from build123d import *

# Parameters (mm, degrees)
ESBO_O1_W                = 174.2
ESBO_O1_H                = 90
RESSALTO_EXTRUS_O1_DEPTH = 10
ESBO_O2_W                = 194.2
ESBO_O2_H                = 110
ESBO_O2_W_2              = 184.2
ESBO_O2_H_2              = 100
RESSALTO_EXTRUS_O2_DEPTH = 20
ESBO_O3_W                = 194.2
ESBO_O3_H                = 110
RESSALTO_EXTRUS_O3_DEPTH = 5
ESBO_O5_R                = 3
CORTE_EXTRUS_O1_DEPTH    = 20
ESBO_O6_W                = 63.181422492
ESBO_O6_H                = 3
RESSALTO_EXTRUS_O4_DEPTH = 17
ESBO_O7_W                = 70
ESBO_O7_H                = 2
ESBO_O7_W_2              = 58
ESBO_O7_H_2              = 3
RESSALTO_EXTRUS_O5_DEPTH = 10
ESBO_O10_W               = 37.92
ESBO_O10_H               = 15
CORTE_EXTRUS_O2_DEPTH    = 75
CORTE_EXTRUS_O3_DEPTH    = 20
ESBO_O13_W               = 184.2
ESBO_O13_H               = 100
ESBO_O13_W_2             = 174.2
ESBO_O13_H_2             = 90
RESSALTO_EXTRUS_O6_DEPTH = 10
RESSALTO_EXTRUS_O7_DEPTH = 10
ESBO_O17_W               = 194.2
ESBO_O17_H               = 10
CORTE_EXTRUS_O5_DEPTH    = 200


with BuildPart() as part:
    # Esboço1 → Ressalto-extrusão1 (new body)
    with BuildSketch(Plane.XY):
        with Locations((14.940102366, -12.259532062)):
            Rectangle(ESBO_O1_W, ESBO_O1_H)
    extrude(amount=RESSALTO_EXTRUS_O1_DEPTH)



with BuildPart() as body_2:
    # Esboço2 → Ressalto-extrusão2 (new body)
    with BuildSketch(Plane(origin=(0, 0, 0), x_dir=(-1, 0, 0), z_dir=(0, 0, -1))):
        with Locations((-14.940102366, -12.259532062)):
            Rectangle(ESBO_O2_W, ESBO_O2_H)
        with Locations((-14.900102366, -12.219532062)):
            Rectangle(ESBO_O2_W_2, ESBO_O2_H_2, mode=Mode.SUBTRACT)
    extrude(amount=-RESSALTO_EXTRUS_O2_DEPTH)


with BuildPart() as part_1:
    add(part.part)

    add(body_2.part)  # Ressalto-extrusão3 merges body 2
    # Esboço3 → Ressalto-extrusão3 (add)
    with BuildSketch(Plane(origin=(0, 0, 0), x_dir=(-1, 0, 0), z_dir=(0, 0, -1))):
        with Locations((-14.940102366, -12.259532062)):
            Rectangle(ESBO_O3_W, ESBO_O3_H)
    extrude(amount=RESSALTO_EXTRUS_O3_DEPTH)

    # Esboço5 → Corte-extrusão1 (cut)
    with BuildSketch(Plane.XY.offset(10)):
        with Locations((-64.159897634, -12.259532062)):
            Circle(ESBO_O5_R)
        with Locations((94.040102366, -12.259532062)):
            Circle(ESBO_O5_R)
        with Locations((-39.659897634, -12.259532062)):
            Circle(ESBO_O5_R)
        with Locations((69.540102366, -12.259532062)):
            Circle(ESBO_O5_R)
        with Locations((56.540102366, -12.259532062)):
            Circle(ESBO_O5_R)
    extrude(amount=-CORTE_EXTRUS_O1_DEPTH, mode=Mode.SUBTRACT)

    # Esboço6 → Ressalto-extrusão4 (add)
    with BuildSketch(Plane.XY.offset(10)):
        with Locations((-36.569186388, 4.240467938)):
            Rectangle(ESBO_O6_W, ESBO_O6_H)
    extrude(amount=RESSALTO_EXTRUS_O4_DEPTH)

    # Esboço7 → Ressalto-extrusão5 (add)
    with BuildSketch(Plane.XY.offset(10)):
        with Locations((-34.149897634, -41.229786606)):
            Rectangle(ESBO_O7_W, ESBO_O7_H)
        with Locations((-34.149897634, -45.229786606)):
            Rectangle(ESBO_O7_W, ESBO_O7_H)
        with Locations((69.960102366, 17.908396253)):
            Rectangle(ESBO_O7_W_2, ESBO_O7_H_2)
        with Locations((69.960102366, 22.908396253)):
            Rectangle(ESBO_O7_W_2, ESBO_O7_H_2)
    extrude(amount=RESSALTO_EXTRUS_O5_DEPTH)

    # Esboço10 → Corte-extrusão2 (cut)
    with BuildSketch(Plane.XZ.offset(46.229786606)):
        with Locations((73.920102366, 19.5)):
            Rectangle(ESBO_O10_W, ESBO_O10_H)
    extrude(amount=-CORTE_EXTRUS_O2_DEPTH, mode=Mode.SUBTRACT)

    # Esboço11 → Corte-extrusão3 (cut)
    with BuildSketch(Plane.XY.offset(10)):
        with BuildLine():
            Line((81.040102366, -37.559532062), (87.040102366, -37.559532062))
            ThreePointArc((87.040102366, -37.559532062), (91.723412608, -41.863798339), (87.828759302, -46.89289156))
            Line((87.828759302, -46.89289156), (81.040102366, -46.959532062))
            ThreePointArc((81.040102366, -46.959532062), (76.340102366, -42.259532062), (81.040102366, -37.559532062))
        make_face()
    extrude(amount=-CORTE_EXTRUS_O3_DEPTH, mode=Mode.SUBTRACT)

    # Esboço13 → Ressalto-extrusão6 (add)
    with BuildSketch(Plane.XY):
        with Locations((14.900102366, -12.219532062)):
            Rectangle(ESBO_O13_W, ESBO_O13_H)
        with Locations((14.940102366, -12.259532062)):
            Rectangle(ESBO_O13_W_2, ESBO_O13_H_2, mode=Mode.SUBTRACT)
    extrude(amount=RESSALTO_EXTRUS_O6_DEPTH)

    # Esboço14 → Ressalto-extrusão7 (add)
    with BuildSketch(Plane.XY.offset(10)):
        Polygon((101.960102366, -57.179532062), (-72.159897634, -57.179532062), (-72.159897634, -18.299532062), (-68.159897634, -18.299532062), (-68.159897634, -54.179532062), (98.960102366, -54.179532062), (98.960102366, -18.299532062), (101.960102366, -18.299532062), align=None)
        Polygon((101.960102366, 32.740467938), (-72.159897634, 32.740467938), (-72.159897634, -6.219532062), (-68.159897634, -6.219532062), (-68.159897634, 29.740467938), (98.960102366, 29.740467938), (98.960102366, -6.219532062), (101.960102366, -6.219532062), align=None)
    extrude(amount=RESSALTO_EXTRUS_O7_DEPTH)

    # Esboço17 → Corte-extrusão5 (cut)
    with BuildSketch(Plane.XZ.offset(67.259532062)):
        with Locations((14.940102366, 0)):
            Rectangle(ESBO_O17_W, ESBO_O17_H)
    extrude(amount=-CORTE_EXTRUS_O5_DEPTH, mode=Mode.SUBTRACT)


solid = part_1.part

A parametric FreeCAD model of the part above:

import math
import FreeCAD as App
import Part
import Sketcher
from FreeCAD import Vector


def add_polygon(sketch, points):
    """Adds a closed chain of lines whose ends are joined by coincident constraints."""
    first, n = sketch.GeometryCount, len(points)
    for a, b in zip(points, points[1:] + points[:1]):
        sketch.addGeometry(Part.LineSegment(App.Vector(*a, 0), App.Vector(*b, 0)), False)
    for i in range(n):
        sketch.addConstraint(Sketcher.Constraint("Coincident", first + i, 2, first + (i + 1) % n, 1))

doc = App.newDocument("Part")
body = doc.addObject("PartDesign::Body", "Body")

sketch1 = body.newObject("Sketcher::SketchObject", "Sketch")
sketch1.AttachmentSupport = (doc.getObject("XY_Plane"), [""])
sketch1.MapMode = "FlatFace"
add_polygon(sketch1, [(-72.159898, 32.740468), (-72.159898, -57.259532), (102.040102, -57.259532), (102.040102, 32.740468)])
sketch1.addConstraint([
    Sketcher.Constraint("Vertical", 0),
    Sketcher.Constraint("Horizontal", 1),
    Sketcher.Constraint("Vertical", 2),
    Sketcher.Constraint("Horizontal", 3),
    Sketcher.Constraint("DistanceY", 0, 2, 0, 1, 90.0),
    Sketcher.Constraint("DistanceX", 1, 1, 1, 2, 174.2),
    Sketcher.Constraint("DistanceX", 0, 2, -1, 1, 72.159898),
    Sketcher.Constraint("DistanceY", 0, 2, -1, 1, 57.259532),
])
pad1 = body.newObject("PartDesign::Pad", "Pad")
pad1.Profile = sketch1
pad1.Length = 10
body2 = doc.addObject("PartDesign::Body", "Body001")

sketch2 = body2.newObject("Sketcher::SketchObject", "Sketch001")
sketch2.AttachmentSupport = (doc.getObject("XY_Plane001"), [""])
sketch2.MapMode = "FlatFace"
add_polygon(sketch2, [(112.040102, 42.740468), (112.040102, -67.259532), (-82.159898, -67.259532), (-82.159898, 42.740468)])
add_polygon(sketch2, [(-77.199898, -62.219532), (107.000102, -62.219532), (107.000102, 37.780468), (-77.199898, 37.780468)])
sketch2.addConstraint([
    Sketcher.Constraint("Vertical", 0),
    Sketcher.Constraint("Horizontal", 1),
    Sketcher.Constraint("Vertical", 2),
    Sketcher.Constraint("Horizontal", 3),
    Sketcher.Constraint("Horizontal", 4),
    Sketcher.Constraint("Vertical", 5),
    Sketcher.Constraint("Horizontal", 6),
    Sketcher.Constraint("Vertical", 7),
    Sketcher.Constraint("DistanceY", 0, 2, 0, 1, 110.0),
    Sketcher.Constraint("DistanceY", 5, 1, 5, 2, 100.0),
    Sketcher.Constraint("DistanceX", 1, 2, 1, 1, 194.2),
    Sketcher.Constraint("DistanceX", 4, 1, 4, 2, 184.2),
    Sketcher.Constraint("DistanceX", 4, 2, 0, 2, 5.04),
    Sketcher.Constraint("DistanceY", 0, 2, 4, 2, 5.04),
    Sketcher.Constraint("DistanceX", -1, 1, 0, 2, 112.040102),
    Sketcher.Constraint("DistanceY", 0, 2, -1, 1, 67.259532),
])
pad2 = body2.newObject("PartDesign::Pad", "Pad001")
pad2.Profile = sketch2
pad2.Length = 20
body.AllowCompound = True
doc.recompute()

boolean = body.newObject("PartDesign::Boolean", "Boolean")
boolean.Type = "Fuse"
boolean.addObjects([body2])

sketch3 = body.newObject("Sketcher::SketchObject", "Sketch002")
sketch3.AttachmentSupport = (doc.getObject("XY_Plane"), [""])
sketch3.MapMode = "FlatFace"
add_polygon(sketch3, [(112.040102, 42.740468), (112.040102, -67.259532), (-82.159898, -67.259532), (-82.159898, 42.740468)])
sketch3.addConstraint([
    Sketcher.Constraint("Vertical", 0),
    Sketcher.Constraint("Horizontal", 1),
    Sketcher.Constraint("Vertical", 2),
    Sketcher.Constraint("Horizontal", 3),
    Sketcher.Constraint("DistanceY", 0, 2, 0, 1, 110.0),
    Sketcher.Constraint("DistanceX", 1, 2, 1, 1, 194.2),
    Sketcher.Constraint("DistanceX", -1, 1, 0, 2, 112.040102),
    Sketcher.Constraint("DistanceY", 0, 2, -1, 1, 67.259532),
])
pad3 = body.newObject("PartDesign::Pad", "Pad002")
pad3.Profile = sketch3
pad3.Length = 5
pad3.Reversed = True

sketch4 = body.newObject("Sketcher::SketchObject", "Sketch003")
sketch4.AttachmentSupport = (doc.getObject("XY_Plane"), [""])
sketch4.MapMode = "FlatFace"
sketch4.AttachmentOffset = App.Placement(Vector(0, 0, 10), App.Rotation())
sketch4.addGeometry([
    Part.Circle(Vector(-64.159898, -12.259532, 0), Vector(0, 0, 1), 3),
    Part.Circle(Vector(94.040102, -12.259532, 0), Vector(0, 0, 1), 3),
    Part.Circle(Vector(-39.659898, -12.259532, 0), Vector(0, 0, 1), 3),
    Part.Circle(Vector(69.540102, -12.259532, 0), Vector(0, 0, 1), 3),
    Part.Circle(Vector(56.540102, -12.259532, 0), Vector(0, 0, 1), 3),
], False)
sketch4.addConstraint([
    Sketcher.Constraint("Equal", 0, 1),
    Sketcher.Constraint("Equal", 1, 2),
    Sketcher.Constraint("Equal", 2, 3),
    Sketcher.Constraint("Equal", 3, 4),
    Sketcher.Constraint("Horizontal", 0, 3, 1, 3),
    Sketcher.Constraint("Horizontal", 1, 3, 2, 3),
    Sketcher.Constraint("Horizontal", 2, 3, 3, 3),
    Sketcher.Constraint("Horizontal", 3, 3, 4, 3),
    Sketcher.Constraint("Diameter", 0, 6.0),
    Sketcher.Constraint("DistanceX", 4, 3, 3, 3, 13.0),
    Sketcher.Constraint("DistanceX", 0, 3, 1, 3, 158.2),
    Sketcher.Constraint("DistanceX", 0, 3, 2, 3, 24.5),
    Sketcher.Constraint("DistanceX", 3, 3, 1, 3, 24.5),
    Sketcher.Constraint("DistanceX", 0, 3, -1, 1, 64.159898),
    Sketcher.Constraint("DistanceY", 0, 3, -1, 1, 12.259532),
])
pocket1 = body.newObject("PartDesign::Pocket", "Pocket")
pocket1.Profile = sketch4
pocket1.Length = 20

sketch5 = body.newObject("Sketcher::SketchObject", "Sketch004")
sketch5.AttachmentSupport = (doc.getObject("XY_Plane"), [""])
sketch5.MapMode = "FlatFace"
sketch5.AttachmentOffset = App.Placement(Vector(0, 0, 10), App.Rotation())
add_polygon(sketch5, [(-68.159898, 5.740468), (-68.159898, 2.740468), (-4.978475, 2.740468), (-4.978475, 5.740468)])
sketch5.addConstraint([
    Sketcher.Constraint("Vertical", 0),
    Sketcher.Constraint("Horizontal", 1),
    Sketcher.Constraint("Vertical", 2),
    Sketcher.Constraint("Horizontal", 3),
    Sketcher.Constraint("DistanceY", 0, 2, 0, 1, 3.0),
    Sketcher.Constraint("DistanceX", 1, 1, 1, 2, 63.181422),
    Sketcher.Constraint("DistanceX", 0, 2, -1, 1, 68.159898),
    Sketcher.Constraint("DistanceY", -1, 1, 0, 2, 2.740468),
])
pad4 = body.newObject("PartDesign::Pad", "Pad003")
pad4.Profile = sketch5
pad4.Length = 17

sketch6 = body.newObject("Sketcher::SketchObject", "Sketch005")
sketch6.AttachmentSupport = (doc.getObject("XY_Plane"), [""])
sketch6.MapMode = "FlatFace"
sketch6.AttachmentOffset = App.Placement(Vector(0, 0, 10), App.Rotation())
add_polygon(sketch6, [(-69.149898, -40.229787), (-69.149898, -42.229787), (0.850102, -42.229787), (0.850102, -40.229787)])
add_polygon(sketch6, [(-69.149898, -44.229787), (-69.149898, -46.229787), (0.850102, -46.229787), (0.850102, -44.229787)])
add_polygon(sketch6, [(40.960102, 19.408396), (40.960102, 16.408396), (98.960102, 16.408396), (98.960102, 19.408396)])
add_polygon(sketch6, [(40.960102, 24.408396), (40.960102, 21.408396), (98.960102, 21.408396), (98.960102, 24.408396)])
sketch6.addConstraint([
    Sketcher.Constraint("Vertical", 0),
    Sketcher.Constraint("Horizontal", 1),
    Sketcher.Constraint("Vertical", 2),
    Sketcher.Constraint("Horizontal", 3),
    Sketcher.Constraint("Vertical", 4),
    Sketcher.Constraint("Horizontal", 5),
    Sketcher.Constraint("Vertical", 6),
    Sketcher.Constraint("Horizontal", 7),
    Sketcher.Constraint("Vertical", 8),
    Sketcher.Constraint("Horizontal", 9),
    Sketcher.Constraint("Vertical", 10),
    Sketcher.Constraint("Horizontal", 11),
    Sketcher.Constraint("Vertical", 12),
    Sketcher.Constraint("Horizontal", 13),
    Sketcher.Constraint("Vertical", 14),
    Sketcher.Constraint("Horizontal", 15),
    Sketcher.Constraint("Vertical", 3, 2, 4, 2),
    Sketcher.Constraint("Vertical", 2, 2, 5, 2),
    Sketcher.Constraint("Vertical", 11, 2, 12, 2),
    Sketcher.Constraint("Vertical", 10, 2, 13, 2),
    Sketcher.Constraint("Equal", 2, 4),
    Sketcher.Constraint("Equal", 10, 12),
    Sketcher.Constraint("DistanceX", 1, 1, 1, 2, 70.0),
    Sketcher.Constraint("DistanceX", 9, 1, 9, 2, 58.0),
    Sketcher.Constraint("DistanceY", 0, 2, 0, 1, 2.0),
    Sketcher.Constraint("DistanceY", 8, 2, 8, 1, 3.0),
    Sketcher.Constraint("DistanceY", 4, 2, 0, 2, 4.0),
    Sketcher.Constraint("DistanceY", 11, 2, 12, 2, 2.0),
    Sketcher.Constraint("DistanceX", 2, 2, 8, 2, 40.11),
    Sketcher.Constraint("DistanceX", 0, 2, -1, 1, 69.149898),
    Sketcher.Constraint("DistanceY", 0, 2, -1, 1, 42.229787),
    Sketcher.Constraint("DistanceY", -1, 1, 8, 2, 16.408396),
])
pad5 = body.newObject("PartDesign::Pad", "Pad004")
pad5.Profile = sketch6
pad5.Length = 10

sketch7 = body.newObject("Sketcher::SketchObject", "Sketch006")
sketch7.AttachmentSupport = (doc.getObject("XZ_Plane"), [""])
sketch7.MapMode = "FlatFace"
sketch7.AttachmentOffset = App.Placement(Vector(0, 0, 46.229787), App.Rotation())
add_polygon(sketch7, [(54.960102, 27), (54.960102, 12), (92.880102, 12), (92.880102, 27)])
sketch7.addConstraint([
    Sketcher.Constraint("Vertical", 0),
    Sketcher.Constraint("Horizontal", 1),
    Sketcher.Constraint("Vertical", 2),
    Sketcher.Constraint("Horizontal", 3),
    Sketcher.Constraint("DistanceY", 0, 2, 0, 1, 15.0),
    Sketcher.Constraint("DistanceY", -1, 1, 0, 2, 12.0),
    Sketcher.Constraint("DistanceX", 1, 1, 1, 2, 37.92),
    Sketcher.Constraint("DistanceX", -1, 1, 0, 2, 54.960102),
])
pocket2 = body.newObject("PartDesign::Pocket", "Pocket001")
pocket2.Profile = sketch7
pocket2.Length = 75

sketch8 = body.newObject("Sketcher::SketchObject", "Sketch007")
sketch8.AttachmentSupport = (doc.getObject("XY_Plane"), [""])
sketch8.MapMode = "FlatFace"
sketch8.AttachmentOffset = App.Placement(Vector(0, 0, 10), App.Rotation())
sketch8.addGeometry([
    Part.LineSegment(Vector(87.040102, -37.559532, 0), Vector(81.040102, -37.559532, 0)),
    Part.ArcOfCircle(Part.Circle(Vector(81.040102, -42.259532, 0), Vector(0, 0, 1), 4.7), math.radians(90), math.radians(270)),
    Part.LineSegment(Vector(81.040102, -46.959532, 0), Vector(87.828759, -46.892892, 0)),
    Part.ArcOfCircle(Part.Circle(Vector(87.040102, -42.259532, 0), Vector(0, 0, 1), 4.7), math.radians(-80.340107), math.radians(90)),
], False)
sketch8.addConstraint([
    Sketcher.Constraint("Tangent", 0, 2, 1, 1),
    Sketcher.Constraint("Coincident", 1, 2, 2, 1),
    Sketcher.Constraint("Coincident", 2, 2, 3, 1),
    Sketcher.Constraint("Tangent", 3, 2, 0, 1),
    Sketcher.Constraint("Horizontal", 0),
    Sketcher.Constraint("Equal", 1, 3),
    Sketcher.Constraint("Vertical", 0, 2, 1, 2),
    Sketcher.Constraint("Radius", 1, 4.7),
    Sketcher.Constraint("DistanceX", 0, 2, 0, 1, 6.0),
    Sketcher.Constraint("DistanceX", -1, 1, 2, 2, 87.828759),
    Sketcher.Constraint("DistanceY", 2, 2, -1, 1, 46.892892),
    Sketcher.Constraint("DistanceY", 2, 2, 3, 3, 4.633359),
])
pocket3 = body.newObject("PartDesign::Pocket", "Pocket002")
pocket3.Profile = sketch8
pocket3.Length = 20

sketch9 = body.newObject("Sketcher::SketchObject", "Sketch008")
sketch9.AttachmentSupport = (doc.getObject("XY_Plane"), [""])
sketch9.MapMode = "FlatFace"
add_polygon(sketch9, [(-77.199898, 37.780468), (-77.199898, -62.219532), (107.000102, -62.219532), (107.000102, 37.780468)])
add_polygon(sketch9, [(102.040102, -57.259532), (-72.159898, -57.259532), (-72.159898, 32.740468), (102.040102, 32.740468)])
sketch9.addConstraint([
    Sketcher.Constraint("Vertical", 0),
    Sketcher.Constraint("Horizontal", 1),
    Sketcher.Constraint("Vertical", 2),
    Sketcher.Constraint("Horizontal", 3),
    Sketcher.Constraint("Horizontal", 4),
    Sketcher.Constraint("Vertical", 5),
    Sketcher.Constraint("Horizontal", 6),
    Sketcher.Constraint("Vertical", 7),
    Sketcher.Constraint("DistanceY", 0, 2, 0, 1, 100.0),
    Sketcher.Constraint("DistanceY", 5, 1, 5, 2, 90.0),
    Sketcher.Constraint("DistanceX", 1, 1, 1, 2, 184.2),
    Sketcher.Constraint("DistanceX", 4, 2, 4, 1, 174.2),
    Sketcher.Constraint("DistanceX", 0, 2, 4, 2, 5.04),
    Sketcher.Constraint("DistanceY", 0, 2, 4, 2, 4.96),
    Sketcher.Constraint("DistanceX", 0, 2, -1, 1, 77.199898),
    Sketcher.Constraint("DistanceY", 0, 2, -1, 1, 62.219532),
])
pad6 = body.newObject("PartDesign::Pad", "Pad005")
pad6.Profile = sketch9
pad6.Length = 10

sketch10 = body.newObject("Sketcher::SketchObject", "Sketch009")
sketch10.AttachmentSupport = (doc.getObject("XY_Plane"), [""])
sketch10.MapMode = "FlatFace"
sketch10.AttachmentOffset = App.Placement(Vector(0, 0, 10), App.Rotation())
add_polygon(sketch10, [(-72.159898, -57.179532), (101.960102, -57.179532), (101.960102, -18.299532), (98.960102, -18.299532), (98.960102, -54.179532), (-68.159898, -54.179532), (-68.159898, -18.299532), (-72.159898, -18.299532)])
add_polygon(sketch10, [(101.960102, 32.740468), (-72.159898, 32.740468), (-72.159898, -6.219532), (-68.159898, -6.219532), (-68.159898, 29.740468), (98.960102, 29.740468), (98.960102, -6.219532), (101.960102, -6.219532)])
sketch10.addConstraint([
    Sketcher.Constraint("Horizontal", 0),
    Sketcher.Constraint("Vertical", 1),
    Sketcher.Constraint("Horizontal", 2),
    Sketcher.Constraint("Vertical", 3),
    Sketcher.Constraint("Horizontal", 4),
    Sketcher.Constraint("Vertical", 5),
    Sketcher.Constraint("Horizontal", 6),
    Sketcher.Constraint("Vertical", 7),
    Sketcher.Constraint("Horizontal", 8),
    Sketcher.Constraint("Vertical", 9),
    Sketcher.Constraint("Horizontal", 10),
    Sketcher.Constraint("Vertical", 11),
    Sketcher.Constraint("Horizontal", 12),
    Sketcher.Constraint("Vertical", 13),
    Sketcher.Constraint("Horizontal", 14),
    Sketcher.Constraint("Vertical", 15),
    Sketcher.Constraint("Horizontal", 2, 2, 5, 2),
    Sketcher.Constraint("Horizontal", 10, 2, 13, 2),
    Sketcher.Constraint("Vertical", 7, 2, 8, 2),
    Sketcher.Constraint("Vertical", 5, 2, 10, 2),
    Sketcher.Constraint("Vertical", 3, 2, 12, 2),
    Sketcher.Constraint("Vertical", 1, 2, 14, 2),
    Sketcher.Constraint("DistanceX", 2, 2, 2, 1, 3.0),
    Sketcher.Constraint("DistanceX", 6, 2, 6, 1, 4.0),
    Sketcher.Constraint("DistanceY", 0, 2, 3, 2, 3.0),
    Sketcher.Constraint("DistanceY", 11, 2, 8, 2, 3.0),
    Sketcher.Constraint("DistanceX", 0, 1, 0, 2, 174.12),
    Sketcher.Constraint("DistanceY", 1, 1, 1, 2, 38.88),
    Sketcher.Constraint("DistanceY", 9, 2, 9, 1, 38.96),
    Sketcher.Constraint("DistanceY", 6, 2, 8, 2, 51.04),
    Sketcher.Constraint("DistanceX", -1, 1, 0, 2, 101.960102),
    Sketcher.Constraint("DistanceY", 0, 2, -1, 1, 57.179532),
])
pad7 = body.newObject("PartDesign::Pad", "Pad006")
pad7.Profile = sketch10
pad7.Length = 10

sketch11 = body.newObject("Sketcher::SketchObject", "Sketch010")
sketch11.AttachmentSupport = (doc.getObject("XZ_Plane"), [""])
sketch11.MapMode = "FlatFace"
sketch11.AttachmentOffset = App.Placement(Vector(0, 0, 67.259532), App.Rotation())
add_polygon(sketch11, [(-82.159898, 5), (-82.159898, -5), (112.040102, -5), (112.040102, 5)])
sketch11.addConstraint([
    Sketcher.Constraint("Vertical", 0),
    Sketcher.Constraint("Horizontal", 1),
    Sketcher.Constraint("Vertical", 2),
    Sketcher.Constraint("Horizontal", 3),
    Sketcher.Constraint("DistanceY", 0, 2, 0, 1, 10.0),
    Sketcher.Constraint("DistanceX", 1, 1, 1, 2, 194.2),
    Sketcher.Constraint("DistanceY", 0, 2, -1, 1, 5.0),
    Sketcher.Constraint("DistanceX", 0, 2, -1, 1, 82.159898),
])
pocket4 = body.newObject("PartDesign::Pocket", "Pocket003")
pocket4.Profile = sketch11
pocket4.Length = 200

doc.recompute()
